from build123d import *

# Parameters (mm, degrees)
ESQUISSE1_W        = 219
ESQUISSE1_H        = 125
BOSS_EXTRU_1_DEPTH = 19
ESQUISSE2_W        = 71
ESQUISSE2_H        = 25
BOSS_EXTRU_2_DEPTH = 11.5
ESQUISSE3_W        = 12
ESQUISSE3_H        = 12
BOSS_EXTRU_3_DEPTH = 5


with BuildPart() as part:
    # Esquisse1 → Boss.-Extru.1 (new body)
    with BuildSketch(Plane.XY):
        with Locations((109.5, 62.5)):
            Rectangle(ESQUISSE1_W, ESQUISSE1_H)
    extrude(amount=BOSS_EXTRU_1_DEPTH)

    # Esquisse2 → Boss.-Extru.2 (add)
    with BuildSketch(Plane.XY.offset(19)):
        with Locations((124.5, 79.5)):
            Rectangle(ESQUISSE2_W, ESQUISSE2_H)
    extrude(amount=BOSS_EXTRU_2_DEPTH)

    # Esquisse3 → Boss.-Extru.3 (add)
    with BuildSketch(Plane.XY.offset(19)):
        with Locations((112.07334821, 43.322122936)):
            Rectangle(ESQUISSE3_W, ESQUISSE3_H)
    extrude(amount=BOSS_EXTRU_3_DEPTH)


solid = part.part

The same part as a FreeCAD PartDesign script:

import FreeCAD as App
import Part
import Sketcher
from FreeCAD import Vector

doc = App.newDocument("Part")
body = doc.addObject("PartDesign::Body", "Body")

# Sketch on XY plane
sketch1 = body.newObject("Sketcher::SketchObject", "Sketch")
sketch1.AttachmentSupport = (doc.getObject("XY_Plane"), [""])
sketch1.MapMode = "FlatFace"
sketch1.addGeometry(Part.LineSegment(Vector(0, 125, 0), Vector(0, 0, 0)), False)
sketch1.addGeometry(Part.LineSegment(Vector(0, 0, 0), Vector(219, 0, 0)), False)
sketch1.addGeometry(Part.LineSegment(Vector(219, 0, 0), Vector(219, 125, 0)), False)
sketch1.addGeometry(Part.LineSegment(Vector(219, 125, 0), Vector(0, 125, 0)), False)
sketch1.addConstraint(Sketcher.Constraint("Coincident", 0, 2, 1, 1))
sketch1.addConstraint(Sketcher.Constraint("Coincident", 1, 2, 2, 1))
sketch1.addConstraint(Sketcher.Constraint("Coincident", 2, 2, 3, 1))
sketch1.addConstraint(Sketcher.Constraint("Coincident", 3, 2, 0, 1))
sketch1.addConstraint(Sketcher.Constraint("Vertical", 0))
sketch1.addConstraint(Sketcher.Constraint("Horizontal", 1))
sketch1.addConstraint(Sketcher.Constraint("Vertical", 2))
sketch1.addConstraint(Sketcher.Constraint("Horizontal", 3))
sketch1.addConstraint(Sketcher.Constraint("Coincident", 0, 2, -1, 1))
sketch1.addConstraint(Sketcher.Constraint("DistanceX", 1, 1, 1, 2, 219.0))
sketch1.addConstraint(Sketcher.Constraint("DistanceY", 0, 2, 0, 1, 125.0))
pad1 = body.newObject("PartDesign::Pad", "Pad")
pad1.Profile = sketch1
pad1.Length = 19

# Sketch on XY plane
sketch2 = body.newObject("Sketcher::SketchObject", "Sketch001")
sketch2.AttachmentSupport = (doc.getObject("XY_Plane"), [""])
sketch2.MapMode = "FlatFace"
sketch2.AttachmentOffset = App.Placement(Vector(0, 0, 19), App.Rotation())
sketch2.addGeometry(Part.LineSegment(Vector(89, 92, 0), Vector(89, 67, 0)), False)
sketch2.addGeometry(Part.LineSegment(Vector(89, 67, 0), Vector(160, 67, 0)), False)
sketch2.addGeometry(Part.LineSegment(Vector(160, 67, 0), Vector(160, 92, 0)), False)
sketch2.addGeometry(Part.LineSegment(Vector(160, 92, 0), Vector(89, 92, 0)), False)
sketch2.addConstraint(Sketcher.Constraint("Coincident", 0, 2, 1, 1))
sketch2.addConstraint(Sketcher.Constraint("Coincident", 1, 2, 2, 1))
sketch2.addConstraint(Sketcher.Constraint("Coincident", 2, 2, 3, 1))
sketch2.addConstraint(Sketcher.Constraint("Coincident", 3, 2, 0, 1))
sketch2.addConstraint(Sketcher.Constraint("Vertical", 0))
sketch2.addConstraint(Sketcher.Constraint("Horizontal", 1))
sketch2.addConstraint(Sketcher.Constraint("Vertical", 2))
sketch2.addConstraint(Sketcher.Constraint("Horizontal", 3))
sketch2.addConstraint(Sketcher.Constraint("DistanceX", 1, 1, 1, 2, 71.0))
sketch2.addConstraint(Sketcher.Constraint("DistanceY", 0, 2, 0, 1, 25.0))
sketch2.addConstraint(Sketcher.Constraint("DistanceX", -1, 1, 0, 2, 89.0))
sketch2.addConstraint(Sketcher.Constraint("DistanceY", -1, 1, 0, 2, 67.0))
pad2 = body.newObject("PartDesign::Pad", "Pad001")
pad2.Profile = sketch2
pad2.Length = 11.5

# Sketch on XY plane
sketch3 = body.newObject("Sketcher::SketchObject", "Sketch002")
sketch3.AttachmentSupport = (doc.getObject("XY_Plane"), [""])
sketch3.MapMode = "FlatFace"
sketch3.AttachmentOffset = App.Placement(Vector(0, 0, 19), App.Rotation())
sketch3.addGeometry(Part.LineSegment(Vector(106, 49, 0), Vector(106, 37, 0)), False)
sketch3.addGeometry(Part.LineSegment(Vector(106, 37, 0), Vector(118, 37, 0)), False)
sketch3.addGeometry(Part.LineSegment(Vector(118, 37, 0), Vector(118, 49, 0)), False)
sketch3.addGeometry(Part.LineSegment(Vector(118, 49, 0), Vector(106, 49, 0)), False)
sketch3.addConstraint(Sketcher.Constraint("Coincident", 0, 2, 1, 1))
sketch3.addConstraint(Sketcher.Constraint("Coincident", 1, 2, 2, 1))
sketch3.addConstraint(Sketcher.Constraint("Coincident", 2, 2, 3, 1))
sketch3.addConstraint(Sketcher.Constraint("Coincident", 3, 2, 0, 1))
sketch3.addConstraint(Sketcher.Constraint("Vertical", 0))
sketch3.addConstraint(Sketcher.Constraint("Horizontal", 1))
sketch3.addConstraint(Sketcher.Constraint("Vertical", 2))
sketch3.addConstraint(Sketcher.Constraint("Horizontal", 3))
sketch3.addConstraint(Sketcher.Constraint("Equal", 3, 0))
sketch3.addConstraint(Sketcher.Constraint("DistanceX", 1, 1, 1, 2, 12.0))
sketch3.addConstraint(Sketcher.Constraint("DistanceX", -1, 1, 0, 2, 106.073348))
sketch3.addConstraint(Sketcher.Constraint("DistanceY", -1, 1, 0, 2, 37.322123))
pad3 = body.newObject("PartDesign::Pad", "Pad002")
pad3.Profile = sketch3
pad3.Length = 5

doc.recompute()
